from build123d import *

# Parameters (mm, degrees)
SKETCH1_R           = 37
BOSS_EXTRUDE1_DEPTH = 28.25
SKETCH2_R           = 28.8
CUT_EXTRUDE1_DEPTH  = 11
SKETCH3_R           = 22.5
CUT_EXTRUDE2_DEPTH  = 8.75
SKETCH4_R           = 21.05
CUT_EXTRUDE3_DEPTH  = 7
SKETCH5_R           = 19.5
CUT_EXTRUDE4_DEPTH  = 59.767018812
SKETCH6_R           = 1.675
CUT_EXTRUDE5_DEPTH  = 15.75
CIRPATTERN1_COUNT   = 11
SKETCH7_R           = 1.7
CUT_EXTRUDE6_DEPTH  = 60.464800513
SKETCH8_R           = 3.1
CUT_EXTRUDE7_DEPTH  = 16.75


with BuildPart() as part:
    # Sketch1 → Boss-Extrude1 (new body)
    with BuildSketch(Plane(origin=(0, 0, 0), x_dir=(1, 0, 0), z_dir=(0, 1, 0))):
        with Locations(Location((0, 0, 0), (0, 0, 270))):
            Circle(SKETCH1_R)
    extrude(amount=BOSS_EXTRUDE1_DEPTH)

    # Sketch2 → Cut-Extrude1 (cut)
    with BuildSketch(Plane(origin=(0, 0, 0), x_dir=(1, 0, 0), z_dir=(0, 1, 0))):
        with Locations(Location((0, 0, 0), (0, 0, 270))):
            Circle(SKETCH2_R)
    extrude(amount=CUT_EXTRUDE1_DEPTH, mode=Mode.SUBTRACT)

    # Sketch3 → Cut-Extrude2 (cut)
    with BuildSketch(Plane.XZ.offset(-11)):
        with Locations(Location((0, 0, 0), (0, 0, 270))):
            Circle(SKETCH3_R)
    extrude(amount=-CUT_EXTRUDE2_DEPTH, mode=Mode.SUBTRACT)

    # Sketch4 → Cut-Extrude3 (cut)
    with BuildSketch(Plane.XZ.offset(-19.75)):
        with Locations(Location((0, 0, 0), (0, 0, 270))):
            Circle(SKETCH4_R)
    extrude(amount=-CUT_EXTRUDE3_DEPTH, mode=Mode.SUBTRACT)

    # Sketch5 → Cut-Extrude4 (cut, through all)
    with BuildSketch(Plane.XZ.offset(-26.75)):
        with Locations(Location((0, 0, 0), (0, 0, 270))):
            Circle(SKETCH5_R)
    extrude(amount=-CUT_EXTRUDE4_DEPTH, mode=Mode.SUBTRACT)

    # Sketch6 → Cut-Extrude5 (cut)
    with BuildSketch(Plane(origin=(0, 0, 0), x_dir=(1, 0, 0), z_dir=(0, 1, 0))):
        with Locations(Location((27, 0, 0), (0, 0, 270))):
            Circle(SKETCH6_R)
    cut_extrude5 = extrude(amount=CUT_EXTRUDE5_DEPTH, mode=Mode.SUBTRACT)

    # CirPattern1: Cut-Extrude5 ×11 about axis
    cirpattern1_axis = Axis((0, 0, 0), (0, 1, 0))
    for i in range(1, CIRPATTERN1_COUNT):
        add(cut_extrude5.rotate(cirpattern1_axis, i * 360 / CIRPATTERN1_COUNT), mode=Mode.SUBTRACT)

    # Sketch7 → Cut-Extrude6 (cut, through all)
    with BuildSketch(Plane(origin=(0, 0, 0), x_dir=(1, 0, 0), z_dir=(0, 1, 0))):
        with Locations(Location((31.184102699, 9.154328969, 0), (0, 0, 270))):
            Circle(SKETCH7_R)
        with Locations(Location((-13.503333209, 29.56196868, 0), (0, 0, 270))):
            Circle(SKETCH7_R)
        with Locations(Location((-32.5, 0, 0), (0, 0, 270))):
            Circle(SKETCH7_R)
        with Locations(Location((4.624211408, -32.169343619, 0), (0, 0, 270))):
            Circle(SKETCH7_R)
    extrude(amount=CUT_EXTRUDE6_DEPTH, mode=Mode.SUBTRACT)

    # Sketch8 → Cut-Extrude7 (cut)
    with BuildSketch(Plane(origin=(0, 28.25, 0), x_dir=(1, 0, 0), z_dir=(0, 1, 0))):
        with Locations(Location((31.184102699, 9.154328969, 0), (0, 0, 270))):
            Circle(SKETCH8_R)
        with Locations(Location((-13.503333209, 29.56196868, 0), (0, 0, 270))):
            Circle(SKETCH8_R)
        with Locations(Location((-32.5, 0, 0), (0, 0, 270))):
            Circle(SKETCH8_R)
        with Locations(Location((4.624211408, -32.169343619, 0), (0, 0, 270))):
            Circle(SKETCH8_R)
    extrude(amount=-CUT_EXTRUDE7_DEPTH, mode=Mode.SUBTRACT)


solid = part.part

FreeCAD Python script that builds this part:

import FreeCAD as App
import Part
import Sketcher

V = App.Vector
Q = App.Units.Quantity

doc = App.newDocument("Part")
body = doc.addObject("PartDesign::Body", "Body")

# Sketch on XZ plane
sketch1 = doc.addObject("Sketcher::SketchObject", "Sketch")
body.addObject(sketch1)
sketch1.AttachmentSupport = (doc.XZ_Plane, [""])
sketch1.MapMode = "FlatFace"
sketch1.addGeometry(Part.Circle(V(0, 0, 0), V(0, 0, 1), 37), False)
sketch1.addConstraint(Sketcher.Constraint("Coincident", 0, 3, -1, 1))
sketch1.addConstraint(Sketcher.Constraint("Diameter", 0, Q("74 mm")))
pad1 = doc.addObject("PartDesign::Pad", "Pad")
body.addObject(pad1)
pad1.Profile = sketch1
pad1.Length = 28.25
pad1.Reversed = True

# Sketch on XZ plane
sketch2 = doc.addObject("Sketcher::SketchObject", "Sketch001")
body.addObject(sketch2)
sketch2.AttachmentSupport = (doc.XZ_Plane, [""])
sketch2.MapMode = "FlatFace"
sketch2.addGeometry(Part.Circle(V(0, 0, 0), V(0, 0, 1), 29), False)
sketch2.addConstraint(Sketcher.Constraint("Coincident", 0, 3, -1, 1))
sketch2.addConstraint(Sketcher.Constraint("Diameter", 0, Q("57.6 mm")))
pocket1 = doc.addObject("PartDesign::Pocket", "Pocket")
body.addObject(pocket1)
pocket1.Profile = sketch2
pocket1.Length = 11

# Sketch on XZ plane
sketch3 = doc.addObject("Sketcher::SketchObject", "Sketch002")
body.addObject(sketch3)
sketch3.AttachmentSupport = (doc.XZ_Plane, [""])
sketch3.MapMode = "FlatFace"
sketch3.AttachmentOffset = App.Placement(V(0, 0, -11), App.Rotation())
sketch3.addGeometry(Part.Circle(V(0, 0, 0), V(0, 0, 1), 22), False)
sketch3.addConstraint(Sketcher.Constraint("Coincident", 0, 3, -1, 1))
sketch3.addConstraint(Sketcher.Constraint("Diameter", 0, Q("45 mm")))
pocket2 = doc.addObject("PartDesign::Pocket", "Pocket001")
body.addObject(pocket2)
pocket2.Profile = sketch3
pocket2.Length = 8.75

# Sketch on XZ plane
sketch4 = doc.addObject("Sketcher::SketchObject", "Sketch003")
body.addObject(sketch4)
sketch4.AttachmentSupport = (doc.XZ_Plane, [""])
sketch4.MapMode = "FlatFace"
sketch4.AttachmentOffset = App.Placement(V(0, 0, -19.75), App.Rotation())
sketch4.addGeometry(Part.Circle(V(0, 0, 0), V(0, 0, 1), 21), False)
sketch4.addConstraint(Sketcher.Constraint("Coincident", 0, 3, -1, 1))
sketch4.addConstraint(Sketcher.Constraint("Diameter", 0, Q("42.1 mm")))
pocket3 = doc.addObject("PartDesign::Pocket", "Pocket002")
body.addObject(pocket3)
pocket3.Profile = sketch4
pocket3.Length = 7

# Sketch on XZ plane
sketch5 = doc.addObject("Sketcher::SketchObject", "Sketch004")
body.addObject(sketch5)
sketch5.AttachmentSupport = (doc.XZ_Plane, [""])
sketch5.MapMode = "FlatFace"
sketch5.AttachmentOffset = App.Placement(V(0, 0, -26.75), App.Rotation())
sketch5.addGeometry(Part.Circle(V(0, 0, 0), V(0, 0, 1), 20), False)
sketch5.addConstraint(Sketcher.Constraint("Coincident", 0, 3, -1, 1))
sketch5.addConstraint(Sketcher.Constraint("Diameter", 0, Q("39 mm")))
pocket4 = doc.addObject("PartDesign::Pocket", "Pocket003")
body.addObject(pocket4)
pocket4.Profile = sketch5
pocket4.Type = "ThroughAll"

# Sketch on XZ plane
sketch6 = doc.addObject("Sketcher::SketchObject", "Sketch005")
body.addObject(sketch6)
sketch6.AttachmentSupport = (doc.XZ_Plane, [""])
sketch6.MapMode = "FlatFace"
sketch6.addGeometry(Part.Circle(V(27, 0, 0), V(0, 0, 1), 1.7), False)
sketch6.addConstraint(Sketcher.Constraint("PointOnObject", 0, 3, -1))
sketch6.addConstraint(Sketcher.Constraint("Diameter", 0, Q("3.35 mm")))
sketch6.addConstraint(Sketcher.Constraint("DistanceX", -1, 1, 0, 3, Q("27 mm")))
pocket5 = doc.addObject("PartDesign::Pocket", "Pocket004")
body.addObject(pocket5)
pocket5.Profile = sketch6
pocket5.Length = 15.75
doc.recompute()

polarpattern = doc.addObject("PartDesign::PolarPattern", "PolarPattern")
body.addObject(polarpattern)
polarpattern.Originals = [pocket5]
polarpattern.Axis = (doc.Y_Axis, [""])
polarpattern.Angle = 360
polarpattern.Occurrences = 11
body.Tip = polarpattern

# Sketch on XZ plane
sketch7 = doc.addObject("Sketcher::SketchObject", "Sketch006")
body.addObject(sketch7)
sketch7.AttachmentSupport = (doc.XZ_Plane, [""])
sketch7.MapMode = "FlatFace"
sketch7.addGeometry(Part.Circle(V(31.2, -9.2, 0), V(0, 0, 1), 1.7), False)
sketch7.addGeometry(Part.Circle(V(-13.5, -29.6, 0), V(0, 0, 1), 1.7), False)
sketch7.addGeometry(Part.Circle(V(-32.5, 0, 0), V(0, 0, 1), 1.7), False)
sketch7.addGeometry(Part.Circle(V(4.6, 32.2, 0), V(0, 0, 1), 1.7), False)
sketch7.addConstraint(Sketcher.Constraint("Equal", 0, 1))
sketch7.addConstraint(Sketcher.Constraint("Equal", 1, 2))
sketch7.addConstraint(Sketcher.Constraint("Equal", 2, 3))
sketch7.addConstraint(Sketcher.Constraint("PointOnObject", 2, 3, -1))
sketch7.addConstraint(Sketcher.Constraint("Diameter", 0, Q("3.4 mm")))
sketch7.addConstraint(Sketcher.Constraint("DistanceX", 2, 3, -1, 1, Q("32.5 mm")))
sketch7.addConstraint(Sketcher.Constraint("DistanceY", 0, 3, -1, 1, Q("9.154329 mm")))
sketch7.addConstraint(Sketcher.Constraint("DistanceY", 1, 3, -1, 1, Q("29.561969 mm")))
sketch7.addConstraint(Sketcher.Constraint("DistanceX", -1, 1, 3, 3, Q("4.624211 mm")))
sketch7.addConstraint(Sketcher.Constraint("DistanceX", 3, 3, 0, 3, Q("26.559891 mm")))
sketch7.addConstraint(Sketcher.Constraint("DistanceX", 1, 3, -1, 1, Q("13.503333 mm")))
sketch7.addConstraint(Sketcher.Constraint("DistanceY", -1, 1, 3, 3, Q("32.169344 mm")))
pocket6 = doc.addObject("PartDesign::Pocket", "Pocket005")
body.addObject(pocket6)
pocket6.Profile = sketch7
pocket6.Type = "ThroughAll"

# Sketch on XZ plane
sketch8 = doc.addObject("Sketcher::SketchObject", "Sketch007")
body.addObject(sketch8)
sketch8.AttachmentSupport = (doc.XZ_Plane, [""])
sketch8.MapMode = "FlatFace"
sketch8.AttachmentOffset = App.Placement(V(0, 0, -28.25), App.Rotation())
sketch8.addGeometry(Part.Circle(V(31.2, -9.2, 0), V(0, 0, 1), 3.1), False)
sketch8.addGeometry(Part.Circle(V(-13.5, -29.6, 0), V(0, 0, 1), 3.1), False)
sketch8.addGeometry(Part.Circle(V(-32.5, 0, 0), V(0, 0, 1), 3.1), False)
sketch8.addGeometry(Part.Circle(V(4.6, 32.2, 0), V(0, 0, 1), 3.1), False)
sketch8.addConstraint(Sketcher.Constraint("Equal", 0, 1))
sketch8.addConstraint(Sketcher.Constraint("Equal", 1, 2))
sketch8.addConstraint(Sketcher.Constraint("Equal", 2, 3))
sketch8.addConstraint(Sketcher.Constraint("PointOnObject", 2, 3, -1))
sketch8.addConstraint(Sketcher.Constraint("Diameter", 0, Q("6.2 mm")))
sketch8.addConstraint(Sketcher.Constraint("DistanceX", 2, 3, -1, 1, Q("32.5 mm")))
sketch8.addConstraint(Sketcher.Constraint("DistanceY", 0, 3, -1, 1, Q("9.154329 mm")))
sketch8.addConstraint(Sketcher.Constraint("DistanceY", 1, 3, -1, 1, Q("29.561969 mm")))
sketch8.addConstraint(Sketcher.Constraint("DistanceX", -1, 1, 3, 3, Q("4.624211 mm")))
sketch8.addConstraint(Sketcher.Constraint("DistanceX", 3, 3, 0, 3, Q("26.559891 mm")))
sketch8.addConstraint(Sketcher.Constraint("DistanceX", 1, 3, -1, 1, Q("13.503333 mm")))
sketch8.addConstraint(Sketcher.Constraint("DistanceY", -1, 1, 3, 3, Q("32.169344 mm")))
pocket7 = doc.addObject("PartDesign::Pocket", "Pocket006")
body.addObject(pocket7)
pocket7.Profile = sketch8
pocket7.Length = 16.75
pocket7.Reversed = True

doc.recompute()
